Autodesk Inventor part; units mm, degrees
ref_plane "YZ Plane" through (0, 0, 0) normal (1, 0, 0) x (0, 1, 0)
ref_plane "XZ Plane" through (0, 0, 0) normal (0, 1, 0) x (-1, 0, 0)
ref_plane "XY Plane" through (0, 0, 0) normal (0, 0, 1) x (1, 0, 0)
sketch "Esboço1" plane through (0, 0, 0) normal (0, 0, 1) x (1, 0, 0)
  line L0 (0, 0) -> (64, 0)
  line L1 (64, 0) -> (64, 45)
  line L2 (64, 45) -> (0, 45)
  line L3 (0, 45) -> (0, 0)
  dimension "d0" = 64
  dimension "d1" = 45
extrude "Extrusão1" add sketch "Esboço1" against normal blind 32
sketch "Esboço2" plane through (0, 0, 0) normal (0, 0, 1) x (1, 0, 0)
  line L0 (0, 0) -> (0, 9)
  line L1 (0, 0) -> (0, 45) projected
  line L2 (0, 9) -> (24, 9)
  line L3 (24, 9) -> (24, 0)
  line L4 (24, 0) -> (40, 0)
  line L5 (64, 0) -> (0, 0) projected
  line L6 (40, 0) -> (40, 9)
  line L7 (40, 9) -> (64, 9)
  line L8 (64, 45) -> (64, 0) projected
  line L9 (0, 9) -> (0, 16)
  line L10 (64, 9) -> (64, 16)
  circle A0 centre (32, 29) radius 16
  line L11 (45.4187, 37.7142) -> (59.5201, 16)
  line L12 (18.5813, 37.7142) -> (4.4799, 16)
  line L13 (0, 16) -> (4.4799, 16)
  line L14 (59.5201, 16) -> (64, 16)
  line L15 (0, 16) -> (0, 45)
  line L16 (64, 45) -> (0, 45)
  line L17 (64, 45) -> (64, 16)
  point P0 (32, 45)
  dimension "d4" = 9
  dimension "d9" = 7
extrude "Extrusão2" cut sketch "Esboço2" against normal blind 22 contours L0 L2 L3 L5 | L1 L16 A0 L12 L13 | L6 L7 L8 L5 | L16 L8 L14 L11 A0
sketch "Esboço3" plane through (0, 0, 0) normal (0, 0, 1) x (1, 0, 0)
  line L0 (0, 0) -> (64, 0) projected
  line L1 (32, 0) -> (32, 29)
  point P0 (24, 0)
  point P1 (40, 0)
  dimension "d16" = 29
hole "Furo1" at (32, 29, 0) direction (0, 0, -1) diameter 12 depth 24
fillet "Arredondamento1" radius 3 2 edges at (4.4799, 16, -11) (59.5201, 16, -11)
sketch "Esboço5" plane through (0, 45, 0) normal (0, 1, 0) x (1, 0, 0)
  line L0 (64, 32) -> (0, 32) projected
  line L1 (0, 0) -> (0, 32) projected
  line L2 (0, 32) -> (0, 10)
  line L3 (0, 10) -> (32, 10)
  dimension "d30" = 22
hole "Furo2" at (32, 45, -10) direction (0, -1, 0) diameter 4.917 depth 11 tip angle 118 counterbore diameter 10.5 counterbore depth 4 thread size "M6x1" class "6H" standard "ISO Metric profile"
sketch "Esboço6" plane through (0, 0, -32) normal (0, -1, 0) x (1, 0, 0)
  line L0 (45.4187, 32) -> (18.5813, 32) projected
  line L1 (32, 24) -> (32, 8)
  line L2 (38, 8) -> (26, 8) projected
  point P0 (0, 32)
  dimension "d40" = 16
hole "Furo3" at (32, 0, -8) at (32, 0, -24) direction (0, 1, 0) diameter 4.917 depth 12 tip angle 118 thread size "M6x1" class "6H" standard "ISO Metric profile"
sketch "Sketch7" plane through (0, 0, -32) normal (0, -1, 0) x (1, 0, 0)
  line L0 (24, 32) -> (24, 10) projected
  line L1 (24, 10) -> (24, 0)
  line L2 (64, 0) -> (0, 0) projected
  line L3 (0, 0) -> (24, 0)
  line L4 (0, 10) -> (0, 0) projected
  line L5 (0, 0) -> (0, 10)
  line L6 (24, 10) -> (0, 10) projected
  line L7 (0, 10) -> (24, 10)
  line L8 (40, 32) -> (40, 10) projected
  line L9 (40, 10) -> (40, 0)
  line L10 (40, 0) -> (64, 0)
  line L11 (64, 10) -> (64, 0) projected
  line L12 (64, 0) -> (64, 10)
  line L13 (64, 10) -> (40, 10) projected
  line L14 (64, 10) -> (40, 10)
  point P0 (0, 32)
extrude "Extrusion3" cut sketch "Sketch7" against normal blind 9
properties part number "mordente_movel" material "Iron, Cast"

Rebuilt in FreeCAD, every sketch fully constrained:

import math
import FreeCAD as App
import Part
import Sketcher
Q = App.Units.Quantity


def edges_at(feature, points):
    """Names of the edges that pass closest to the given points."""
    edges = feature.Shape.Edges
    near = lambda p: min(range(len(edges)), key=lambda i: edges[i].distToShape(Part.Vertex(*p))[0])
    return sorted({f"Edge{near(p) + 1}" for p in points})

doc = App.newDocument("Part")
params = doc.addObject("Spreadsheet::Sheet", "Params")
for row, (alias, value) in enumerate([
    ("sketch1_width", "64 mm"),
    ("sketch1_height", "45 mm"),
    ("pad1_length", "32 mm"),
    ("sketch2_height", "9 mm"),
    ("sketch2_radius", "16 mm"),
    ("sketch2_width", "24 mm"),
    ("sketch2_width2", "32 mm"),
    ("sketch2_height2", "29 mm"),
    ("pocket1_length", "22 mm"),
    ("sketch3_diameter", "12 mm"),
    ("hole_diameter", "12 mm"),
    ("hole_depth", "24 mm"),
    ("fillet_radius", "3 mm"),
    ("hole2_diameter", "4.917 mm"),
    ("hole2_depth", "11 mm"),
    ("hole2_cbore_diameter", "10.5 mm"),
    ("hole2_cbore_depth", "4 mm"),
    ("hole3_diameter", "4.917 mm"),
    ("hole3_depth", "12 mm"),
    ("sketch6_width", "24 mm"),
    ("sketch6_height", "10 mm"),
    ("pocket2_length", "9 mm"),
], start=1):
    params.set(f"A{row}", alias)
    params.set(f"B{row}", "=" + value)
    params.setAlias(f"B{row}", alias)

body = doc.addObject("PartDesign::Body", "Body")

sketch1 = body.newObject("Sketcher::SketchObject", "Sketch")
sketch1.AttachmentSupport = (doc.getObject("XY_Plane"), [""])
sketch1.MapMode = "FlatFace"
sketch1.addGeometry([
    Part.LineSegment(App.Vector(0, 45, 0), App.Vector(0, 0, 0)),
    Part.LineSegment(App.Vector(0, 0, 0), App.Vector(64, 0, 0)),
    Part.LineSegment(App.Vector(64, 0, 0), App.Vector(64, 45, 0)),
    Part.LineSegment(App.Vector(64, 45, 0), App.Vector(0, 45, 0)),
], False)
sketch1.addConstraint([
    Sketcher.Constraint("Coincident", 0, 2, 1, 1),
    Sketcher.Constraint("Coincident", 1, 2, 2, 1),
    Sketcher.Constraint("Coincident", 2, 2, 3, 1),
    Sketcher.Constraint("Coincident", 3, 2, 0, 1),
    Sketcher.Constraint("Vertical", 0),
    Sketcher.Constraint("Horizontal", 1),
    Sketcher.Constraint("Vertical", 2),
    Sketcher.Constraint("Horizontal", 3),
    Sketcher.Constraint("Coincident", 0, 2, -1, 1),
    Sketcher.Constraint("DistanceX", 1, 1, 1, 2, 64.0),
    Sketcher.Constraint("DistanceY", 0, 2, 0, 1, 45.0),
])
sketch1.setExpression("Constraints[9]", "Params.sketch1_width")
sketch1.setExpression("Constraints[10]", "Params.sketch1_height")
pad1 = body.newObject("PartDesign::Pad", "Pad")
pad1.Profile = sketch1
pad1.setExpression("Length", "Params.pad1_length")
pad1.Reversed = True

sketch2 = body.newObject("Sketcher::SketchObject", "Sketch001")
sketch2.AttachmentSupport = (doc.getObject("XY_Plane"), [""])
sketch2.MapMode = "FlatFace"
sketch2.addGeometry([
    Part.LineSegment(App.Vector(0, 9, 0), App.Vector(0, 0, 0)),
    Part.LineSegment(App.Vector(0, 0, 0), App.Vector(24, 0, 0)),
    Part.LineSegment(App.Vector(24, 0, 0), App.Vector(24, 9, 0)),
    Part.LineSegment(App.Vector(24, 9, 0), App.Vector(0, 9, 0)),
    Part.LineSegment(App.Vector(0, 45, 0), App.Vector(0, 16, 0)),
    Part.LineSegment(App.Vector(0, 16, 0), App.Vector(4.5, 16, 0)),
    Part.LineSegment(App.Vector(4.5, 16, 0), App.Vector(18.6, 37.7, 0)),
    Part.ArcOfCircle(Part.Circle(App.Vector(32, 29, 0), App.Vector(0, 0, 1), 16), math.radians(90), math.radians(147)),
    Part.LineSegment(App.Vector(32, 45, 0), App.Vector(0, 45, 0)),
    Part.LineSegment(App.Vector(40, 9, 0), App.Vector(40, 0, 0)),
    Part.LineSegment(App.Vector(40, 0, 0), App.Vector(64, 0, 0)),
    Part.LineSegment(App.Vector(64, 0, 0), App.Vector(64, 9, 0)),
    Part.LineSegment(App.Vector(64, 9, 0), App.Vector(40, 9, 0)),
    Part.LineSegment(App.Vector(64, 45, 0), App.Vector(32, 45, 0)),
    Part.ArcOfCircle(Part.Circle(App.Vector(32, 29, 0), App.Vector(0, 0, 1), 16), math.radians(33), math.radians(90)),
    Part.LineSegment(App.Vector(45.4, 37.7, 0), App.Vector(59.5, 16, 0)),
    Part.LineSegment(App.Vector(59.5, 16, 0), App.Vector(64, 16, 0)),
    Part.LineSegment(App.Vector(64, 16, 0), App.Vector(64, 45, 0)),
], False)
sketch2.addConstraint([
    Sketcher.Constraint("Coincident", 0, 2, 1, 1),
    Sketcher.Constraint("Coincident", 1, 2, 2, 1),
    Sketcher.Constraint("Coincident", 2, 2, 3, 1),
    Sketcher.Constraint("Coincident", 3, 2, 0, 1),
    Sketcher.Constraint("Coincident", 4, 2, 5, 1),
    Sketcher.Constraint("Coincident", 5, 2, 6, 1),
    Sketcher.Constraint("Tangent", 6, 2, 7, 2),
    Sketcher.Constraint("Tangent", 7, 1, 8, 1),
    Sketcher.Constraint("Coincident", 8, 2, 4, 1),
    Sketcher.Constraint("Coincident", 9, 2, 10, 1),
    Sketcher.Constraint("Coincident", 10, 2, 11, 1),
    Sketcher.Constraint("Coincident", 11, 2, 12, 1),
    Sketcher.Constraint("Coincident", 12, 2, 9, 1),
    Sketcher.Constraint("Tangent", 13, 2, 14, 2),
    Sketcher.Constraint("Tangent", 14, 1, 15, 1),
    Sketcher.Constraint("Coincident", 15, 2, 16, 1),
    Sketcher.Constraint("Coincident", 16, 2, 17, 1),
    Sketcher.Constraint("Coincident", 17, 2, 13, 1),
    Sketcher.Constraint("Vertical", 0),
    Sketcher.Constraint("Horizontal", 1),
    Sketcher.Constraint("Vertical", 2),
    Sketcher.Constraint("Horizontal", 3),
    Sketcher.Constraint("Vertical", 4),
    Sketcher.Constraint("Horizontal", 5),
    Sketcher.Constraint("Horizontal", 8),
    Sketcher.Constraint("Vertical", 9),
    Sketcher.Constraint("Horizontal", 10),
    Sketcher.Constraint("Vertical", 11),
    Sketcher.Constraint("Horizontal", 12),
    Sketcher.Constraint("Horizontal", 13),
    Sketcher.Constraint("Horizontal", 16),
    Sketcher.Constraint("Vertical", 17),
    Sketcher.Constraint("Coincident", 0, 2, -1, 1),
    Sketcher.Constraint("Coincident", 14, 3, 7, 3),
    Sketcher.Constraint("Equal", 7, 14),
    Sketcher.Constraint("PointOnObject", 4, 2, -2),
    Sketcher.Constraint("PointOnObject", 9, 2, -1),
    Sketcher.Constraint("Horizontal", 3, 2, 11, 2),
    Sketcher.Constraint("Horizontal", 6, 2, 14, 1),
    Sketcher.Constraint("Horizontal", 5, 2, 15, 2),
    Sketcher.Constraint("Vertical", 11, 2, 16, 2),
    Sketcher.Constraint("Equal", 3, 10),
    Sketcher.Constraint("Equal", 8, 13),
    Sketcher.Constraint("DistanceY", 0, 2, 0, 1, 9.0),
    Sketcher.Constraint("Radius", 7, 16.0),
    Sketcher.Constraint("DistanceY", 3, 2, 4, 2, 7.0),
    Sketcher.Constraint("DistanceX", 1, 1, 1, 2, 24.0),
    Sketcher.Constraint("DistanceX", 8, 2, 8, 1, 32.0),
    Sketcher.Constraint("DistanceY", 4, 2, 4, 1, 29.0),
    Sketcher.Constraint("Angle", 6, Q("57 deg")),
])
sketch2.setExpression("Constraints[43]", "Params.sketch2_height")
sketch2.setExpression("Constraints[44]", "Params.sketch2_radius")
sketch2.setExpression("Constraints[46]", "Params.sketch2_width")
sketch2.setExpression("Constraints[47]", "Params.sketch2_width2")
sketch2.setExpression("Constraints[48]", "Params.sketch2_height2")
pocket1 = body.newObject("PartDesign::Pocket", "Pocket")
pocket1.Profile = sketch2
pocket1.setExpression("Length", "Params.pocket1_length")

sketch3 = body.newObject("Sketcher::SketchObject", "Sketch002")
sketch3.AttachmentSupport = (doc.getObject("XY_Plane"), [""])
sketch3.MapMode = "FlatFace"
sketch3.addGeometry(Part.Circle(App.Vector(32, 29, 0), App.Vector(0, 0, 1), 6), False)
sketch3.addConstraint([
    Sketcher.Constraint("Diameter", 0, 12.0),
    Sketcher.Constraint("DistanceX", -1, 1, 0, 3, 32.0),
    Sketcher.Constraint("DistanceY", -1, 1, 0, 3, 29.0),
])
sketch3.setExpression("Constraints[0]", "Params.sketch3_diameter")
doc.recompute()
hole = body.newObject("PartDesign::Hole", "Hole")
hole.Profile = sketch3
hole.ThreadType = "None"
hole.setExpression("Diameter", "Params.hole_diameter")
hole.DepthType = "Dimension"
hole.setExpression("Depth", "Params.hole_depth")
hole.DrillPoint = "Flat"
doc.recompute()

fillet = body.newObject("PartDesign::Fillet", "Fillet")
fillet.Base = (hole, edges_at(hole, [(4.48, 16, -11), (59.52, 16, -11)]))
fillet.setExpression("Radius", "Params.fillet_radius")

sketch4 = body.newObject("Sketcher::SketchObject", "Sketch003")
sketch4.AttachmentSupport = (doc.getObject("XZ_Plane"), [""])
sketch4.MapMode = "FlatFace"
sketch4.AttachmentOffset = App.Placement(App.Vector(0, 0, -45), App.Rotation())
sketch4.addGeometry(Part.Circle(App.Vector(32, -10, 0), App.Vector(0, 0, 1), 2.5), False)
sketch4.addConstraint([
    Sketcher.Constraint("Diameter", 0, 4.917),
    Sketcher.Constraint("DistanceX", -1, 1, 0, 3, 32.0),
    Sketcher.Constraint("DistanceY", 0, 3, -1, 1, 10.0),
])
doc.recompute()
hole2 = body.newObject("PartDesign::Hole", "Hole001")
hole2.Profile = sketch4
hole2.ThreadType = "None"
hole2.setExpression("Diameter", "Params.hole2_diameter")
hole2.DepthType = "Dimension"
hole2.setExpression("Depth", "Params.hole2_depth")
hole2.DrillPoint = "Angled"
hole2.DrillPointAngle = 118
hole2.HoleCutType = "Counterbore"
hole2.setExpression("HoleCutDiameter", "Params.hole2_cbore_diameter")
hole2.setExpression("HoleCutDepth", "Params.hole2_cbore_depth")
hole2.Reversed = True

sketch5 = body.newObject("Sketcher::SketchObject", "Sketch004")
sketch5.AttachmentSupport = (doc.getObject("XZ_Plane"), [""])
sketch5.MapMode = "FlatFace"
sketch5.addGeometry([
    Part.Circle(App.Vector(32, -8, 0), App.Vector(0, 0, 1), 2.5),
    Part.Circle(App.Vector(32, -24, 0), App.Vector(0, 0, 1), 2.5),
], False)
sketch5.addConstraint([
    Sketcher.Constraint("Equal", 0, 1),
    Sketcher.Constraint("Vertical", 0, 3, 1, 3),
    Sketcher.Constraint("Diameter", 0, 4.917),
    Sketcher.Constraint("DistanceX", -1, 1, 0, 3, 32.0),
    Sketcher.Constraint("DistanceY", 0, 3, -1, 1, 8.0),
    Sketcher.Constraint("DistanceY", 1, 3, -1, 1, 24.0),
])
doc.recompute()
hole3 = body.newObject("PartDesign::Hole", "Hole002")
hole3.Profile = sketch5
hole3.ThreadType = "None"
hole3.setExpression("Diameter", "Params.hole3_diameter")
hole3.DepthType = "Dimension"
hole3.setExpression("Depth", "Params.hole3_depth")
hole3.DrillPoint = "Angled"
hole3.DrillPointAngle = 118

sketch6 = body.newObject("Sketcher::SketchObject", "Sketch005")
sketch6.AttachmentSupport = (doc.getObject("XZ_Plane"), [""])
sketch6.MapMode = "FlatFace"
sketch6.addGeometry([
    Part.LineSegment(App.Vector(40, -22, 0), App.Vector(40, -32, 0)),
    Part.LineSegment(App.Vector(40, -32, 0), App.Vector(64, -32, 0)),
    Part.LineSegment(App.Vector(64, -32, 0), App.Vector(64, -22, 0)),
    Part.LineSegment(App.Vector(64, -22, 0), App.Vector(40, -22, 0)),
    Part.LineSegment(App.Vector(24, -32, 0), App.Vector(24, -22, 0)),
    Part.LineSegment(App.Vector(24, -22, 0), App.Vector(0, -22, 0)),
    Part.LineSegment(App.Vector(0, -22, 0), App.Vector(0, -32, 0)),
    Part.LineSegment(App.Vector(0, -32, 0), App.Vector(24, -32, 0)),
], False)
sketch6.addConstraint([
    Sketcher.Constraint("Coincident", 0, 2, 1, 1),
    Sketcher.Constraint("Coincident", 1, 2, 2, 1),
    Sketcher.Constraint("Coincident", 2, 2, 3, 1),
    Sketcher.Constraint("Coincident", 3, 2, 0, 1),
    Sketcher.Constraint("Coincident", 4, 2, 5, 1),
    Sketcher.Constraint("Coincident", 5, 2, 6, 1),
    Sketcher.Constraint("Coincident", 6, 2, 7, 1),
    Sketcher.Constraint("Coincident", 7, 2, 4, 1),
    Sketcher.Constraint("Vertical", 0),
    Sketcher.Constraint("Horizontal", 1),
    Sketcher.Constraint("Vertical", 2),
    Sketcher.Constraint("Horizontal", 3),
    Sketcher.Constraint("Vertical", 4),
    Sketcher.Constraint("Horizontal", 5),
    Sketcher.Constraint("Vertical", 6),
    Sketcher.Constraint("Horizontal", 7),
    Sketcher.Constraint("PointOnObject", 5, 2, -2),
    Sketcher.Constraint("Horizontal", 3, 2, 4, 2),
    Sketcher.Constraint("Horizontal", 1, 2, 6, 2),
    Sketcher.Constraint("Equal", 3, 5),
    Sketcher.Constraint("DistanceX", 1, 1, 1, 2, 24.0),
    Sketcher.Constraint("DistanceY", 0, 2, 0, 1, 10.0),
    Sketcher.Constraint("DistanceX", -1, 1, 0, 2, 40.0),
    Sketcher.Constraint("DistanceY", 0, 2, -1, 1, 32.0),
])
sketch6.setExpression("Constraints[20]", "Params.sketch6_width")
sketch6.setExpression("Constraints[21]", "Params.sketch6_height")
pocket2 = body.newObject("PartDesign::Pocket", "Pocket001")
pocket2.Profile = sketch6
pocket2.setExpression("Length", "Params.pocket2_length")

doc.recompute()
